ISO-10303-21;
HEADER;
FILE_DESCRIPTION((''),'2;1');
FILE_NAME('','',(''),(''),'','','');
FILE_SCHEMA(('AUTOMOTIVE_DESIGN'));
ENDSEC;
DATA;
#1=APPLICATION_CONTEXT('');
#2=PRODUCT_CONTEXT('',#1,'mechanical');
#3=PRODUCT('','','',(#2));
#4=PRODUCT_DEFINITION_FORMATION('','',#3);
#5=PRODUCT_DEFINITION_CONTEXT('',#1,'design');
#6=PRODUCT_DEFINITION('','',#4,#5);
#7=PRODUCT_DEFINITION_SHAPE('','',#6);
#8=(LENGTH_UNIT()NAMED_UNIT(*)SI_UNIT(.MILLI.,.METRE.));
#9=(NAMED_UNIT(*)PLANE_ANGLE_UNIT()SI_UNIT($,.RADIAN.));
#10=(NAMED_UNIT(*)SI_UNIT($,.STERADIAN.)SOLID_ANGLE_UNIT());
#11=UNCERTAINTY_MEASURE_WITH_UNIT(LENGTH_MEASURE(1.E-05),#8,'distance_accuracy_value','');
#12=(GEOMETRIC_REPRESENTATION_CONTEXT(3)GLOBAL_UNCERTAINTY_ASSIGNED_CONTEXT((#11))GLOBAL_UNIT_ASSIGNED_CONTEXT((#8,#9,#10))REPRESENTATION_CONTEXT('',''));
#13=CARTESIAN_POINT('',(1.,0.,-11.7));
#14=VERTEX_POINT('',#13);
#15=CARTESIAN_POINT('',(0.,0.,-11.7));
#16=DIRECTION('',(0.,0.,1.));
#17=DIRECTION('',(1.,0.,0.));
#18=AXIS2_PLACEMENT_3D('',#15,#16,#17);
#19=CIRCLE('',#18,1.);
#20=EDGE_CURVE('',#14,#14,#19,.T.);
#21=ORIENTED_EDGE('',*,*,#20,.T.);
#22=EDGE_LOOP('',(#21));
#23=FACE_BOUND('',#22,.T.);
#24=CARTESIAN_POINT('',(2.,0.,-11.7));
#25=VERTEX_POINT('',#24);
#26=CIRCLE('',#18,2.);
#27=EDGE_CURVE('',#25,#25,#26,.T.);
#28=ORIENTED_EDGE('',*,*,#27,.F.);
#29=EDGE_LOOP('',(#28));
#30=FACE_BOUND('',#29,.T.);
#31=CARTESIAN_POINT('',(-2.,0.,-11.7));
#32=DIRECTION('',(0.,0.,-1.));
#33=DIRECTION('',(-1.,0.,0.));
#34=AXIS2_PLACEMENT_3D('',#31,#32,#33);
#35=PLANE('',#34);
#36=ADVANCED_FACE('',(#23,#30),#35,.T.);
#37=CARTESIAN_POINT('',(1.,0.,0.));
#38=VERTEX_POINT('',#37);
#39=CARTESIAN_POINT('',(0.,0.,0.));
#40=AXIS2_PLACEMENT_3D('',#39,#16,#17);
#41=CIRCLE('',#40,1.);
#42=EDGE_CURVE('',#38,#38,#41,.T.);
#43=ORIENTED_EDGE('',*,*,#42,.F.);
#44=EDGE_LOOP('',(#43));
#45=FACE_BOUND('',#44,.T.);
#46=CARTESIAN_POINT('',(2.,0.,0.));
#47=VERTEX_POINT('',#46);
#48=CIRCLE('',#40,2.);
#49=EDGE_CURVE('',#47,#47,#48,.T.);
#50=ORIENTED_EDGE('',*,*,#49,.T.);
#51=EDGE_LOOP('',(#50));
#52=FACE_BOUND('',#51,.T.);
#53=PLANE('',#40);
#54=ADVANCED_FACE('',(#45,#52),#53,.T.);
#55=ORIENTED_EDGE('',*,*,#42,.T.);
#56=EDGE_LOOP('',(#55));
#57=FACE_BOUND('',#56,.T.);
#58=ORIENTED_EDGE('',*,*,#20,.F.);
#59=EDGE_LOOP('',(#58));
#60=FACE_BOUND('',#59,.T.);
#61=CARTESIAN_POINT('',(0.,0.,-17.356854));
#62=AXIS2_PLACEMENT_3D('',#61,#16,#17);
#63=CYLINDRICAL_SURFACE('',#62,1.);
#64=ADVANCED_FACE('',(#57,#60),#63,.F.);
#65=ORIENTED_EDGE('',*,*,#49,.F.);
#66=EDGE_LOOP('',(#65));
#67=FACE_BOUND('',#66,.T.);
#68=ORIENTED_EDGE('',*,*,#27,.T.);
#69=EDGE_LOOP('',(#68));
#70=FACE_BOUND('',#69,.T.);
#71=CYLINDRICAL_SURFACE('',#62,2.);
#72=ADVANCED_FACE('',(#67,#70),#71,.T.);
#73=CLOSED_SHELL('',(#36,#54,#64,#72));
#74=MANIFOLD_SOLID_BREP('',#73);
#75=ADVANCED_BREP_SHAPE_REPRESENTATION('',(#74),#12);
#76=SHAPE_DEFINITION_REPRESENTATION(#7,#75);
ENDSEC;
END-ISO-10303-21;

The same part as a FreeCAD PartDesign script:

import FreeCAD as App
import Part
import Sketcher
from FreeCAD import Vector
Q = App.Units.Quantity

doc = App.newDocument("Part")
body = doc.addObject("PartDesign::Body", "Body")

# Sketch on XY plane
sketch1 = doc.addObject("Sketcher::SketchObject", "Sketch")
body.addObject(sketch1)
sketch1.AttachmentSupport = (doc.XY_Plane, [""])
sketch1.MapMode = "FlatFace"
sketch1.addGeometry(Part.Circle(Vector(0, 0, 0), Vector(0, 0, 1), 2), False)
sketch1.addGeometry(Part.Circle(Vector(0, 0, 0), Vector(0, 0, 1), 1), False)
sketch1.addConstraint(Sketcher.Constraint("Coincident", 0, 3, -1, 1))
sketch1.addConstraint(Sketcher.Constraint("Coincident", 1, 3, -1, 1))
sketch1.addConstraint(Sketcher.Constraint("Diameter", 0, Q("4 mm")))
sketch1.addConstraint(Sketcher.Constraint("Diameter", 1, Q("2 mm")))
pad1 = doc.addObject("PartDesign::Pad", "Pad")
body.addObject(pad1)
pad1.Profile = sketch1
pad1.Length = 11.7
pad1.Reversed = True

doc.recompute()
